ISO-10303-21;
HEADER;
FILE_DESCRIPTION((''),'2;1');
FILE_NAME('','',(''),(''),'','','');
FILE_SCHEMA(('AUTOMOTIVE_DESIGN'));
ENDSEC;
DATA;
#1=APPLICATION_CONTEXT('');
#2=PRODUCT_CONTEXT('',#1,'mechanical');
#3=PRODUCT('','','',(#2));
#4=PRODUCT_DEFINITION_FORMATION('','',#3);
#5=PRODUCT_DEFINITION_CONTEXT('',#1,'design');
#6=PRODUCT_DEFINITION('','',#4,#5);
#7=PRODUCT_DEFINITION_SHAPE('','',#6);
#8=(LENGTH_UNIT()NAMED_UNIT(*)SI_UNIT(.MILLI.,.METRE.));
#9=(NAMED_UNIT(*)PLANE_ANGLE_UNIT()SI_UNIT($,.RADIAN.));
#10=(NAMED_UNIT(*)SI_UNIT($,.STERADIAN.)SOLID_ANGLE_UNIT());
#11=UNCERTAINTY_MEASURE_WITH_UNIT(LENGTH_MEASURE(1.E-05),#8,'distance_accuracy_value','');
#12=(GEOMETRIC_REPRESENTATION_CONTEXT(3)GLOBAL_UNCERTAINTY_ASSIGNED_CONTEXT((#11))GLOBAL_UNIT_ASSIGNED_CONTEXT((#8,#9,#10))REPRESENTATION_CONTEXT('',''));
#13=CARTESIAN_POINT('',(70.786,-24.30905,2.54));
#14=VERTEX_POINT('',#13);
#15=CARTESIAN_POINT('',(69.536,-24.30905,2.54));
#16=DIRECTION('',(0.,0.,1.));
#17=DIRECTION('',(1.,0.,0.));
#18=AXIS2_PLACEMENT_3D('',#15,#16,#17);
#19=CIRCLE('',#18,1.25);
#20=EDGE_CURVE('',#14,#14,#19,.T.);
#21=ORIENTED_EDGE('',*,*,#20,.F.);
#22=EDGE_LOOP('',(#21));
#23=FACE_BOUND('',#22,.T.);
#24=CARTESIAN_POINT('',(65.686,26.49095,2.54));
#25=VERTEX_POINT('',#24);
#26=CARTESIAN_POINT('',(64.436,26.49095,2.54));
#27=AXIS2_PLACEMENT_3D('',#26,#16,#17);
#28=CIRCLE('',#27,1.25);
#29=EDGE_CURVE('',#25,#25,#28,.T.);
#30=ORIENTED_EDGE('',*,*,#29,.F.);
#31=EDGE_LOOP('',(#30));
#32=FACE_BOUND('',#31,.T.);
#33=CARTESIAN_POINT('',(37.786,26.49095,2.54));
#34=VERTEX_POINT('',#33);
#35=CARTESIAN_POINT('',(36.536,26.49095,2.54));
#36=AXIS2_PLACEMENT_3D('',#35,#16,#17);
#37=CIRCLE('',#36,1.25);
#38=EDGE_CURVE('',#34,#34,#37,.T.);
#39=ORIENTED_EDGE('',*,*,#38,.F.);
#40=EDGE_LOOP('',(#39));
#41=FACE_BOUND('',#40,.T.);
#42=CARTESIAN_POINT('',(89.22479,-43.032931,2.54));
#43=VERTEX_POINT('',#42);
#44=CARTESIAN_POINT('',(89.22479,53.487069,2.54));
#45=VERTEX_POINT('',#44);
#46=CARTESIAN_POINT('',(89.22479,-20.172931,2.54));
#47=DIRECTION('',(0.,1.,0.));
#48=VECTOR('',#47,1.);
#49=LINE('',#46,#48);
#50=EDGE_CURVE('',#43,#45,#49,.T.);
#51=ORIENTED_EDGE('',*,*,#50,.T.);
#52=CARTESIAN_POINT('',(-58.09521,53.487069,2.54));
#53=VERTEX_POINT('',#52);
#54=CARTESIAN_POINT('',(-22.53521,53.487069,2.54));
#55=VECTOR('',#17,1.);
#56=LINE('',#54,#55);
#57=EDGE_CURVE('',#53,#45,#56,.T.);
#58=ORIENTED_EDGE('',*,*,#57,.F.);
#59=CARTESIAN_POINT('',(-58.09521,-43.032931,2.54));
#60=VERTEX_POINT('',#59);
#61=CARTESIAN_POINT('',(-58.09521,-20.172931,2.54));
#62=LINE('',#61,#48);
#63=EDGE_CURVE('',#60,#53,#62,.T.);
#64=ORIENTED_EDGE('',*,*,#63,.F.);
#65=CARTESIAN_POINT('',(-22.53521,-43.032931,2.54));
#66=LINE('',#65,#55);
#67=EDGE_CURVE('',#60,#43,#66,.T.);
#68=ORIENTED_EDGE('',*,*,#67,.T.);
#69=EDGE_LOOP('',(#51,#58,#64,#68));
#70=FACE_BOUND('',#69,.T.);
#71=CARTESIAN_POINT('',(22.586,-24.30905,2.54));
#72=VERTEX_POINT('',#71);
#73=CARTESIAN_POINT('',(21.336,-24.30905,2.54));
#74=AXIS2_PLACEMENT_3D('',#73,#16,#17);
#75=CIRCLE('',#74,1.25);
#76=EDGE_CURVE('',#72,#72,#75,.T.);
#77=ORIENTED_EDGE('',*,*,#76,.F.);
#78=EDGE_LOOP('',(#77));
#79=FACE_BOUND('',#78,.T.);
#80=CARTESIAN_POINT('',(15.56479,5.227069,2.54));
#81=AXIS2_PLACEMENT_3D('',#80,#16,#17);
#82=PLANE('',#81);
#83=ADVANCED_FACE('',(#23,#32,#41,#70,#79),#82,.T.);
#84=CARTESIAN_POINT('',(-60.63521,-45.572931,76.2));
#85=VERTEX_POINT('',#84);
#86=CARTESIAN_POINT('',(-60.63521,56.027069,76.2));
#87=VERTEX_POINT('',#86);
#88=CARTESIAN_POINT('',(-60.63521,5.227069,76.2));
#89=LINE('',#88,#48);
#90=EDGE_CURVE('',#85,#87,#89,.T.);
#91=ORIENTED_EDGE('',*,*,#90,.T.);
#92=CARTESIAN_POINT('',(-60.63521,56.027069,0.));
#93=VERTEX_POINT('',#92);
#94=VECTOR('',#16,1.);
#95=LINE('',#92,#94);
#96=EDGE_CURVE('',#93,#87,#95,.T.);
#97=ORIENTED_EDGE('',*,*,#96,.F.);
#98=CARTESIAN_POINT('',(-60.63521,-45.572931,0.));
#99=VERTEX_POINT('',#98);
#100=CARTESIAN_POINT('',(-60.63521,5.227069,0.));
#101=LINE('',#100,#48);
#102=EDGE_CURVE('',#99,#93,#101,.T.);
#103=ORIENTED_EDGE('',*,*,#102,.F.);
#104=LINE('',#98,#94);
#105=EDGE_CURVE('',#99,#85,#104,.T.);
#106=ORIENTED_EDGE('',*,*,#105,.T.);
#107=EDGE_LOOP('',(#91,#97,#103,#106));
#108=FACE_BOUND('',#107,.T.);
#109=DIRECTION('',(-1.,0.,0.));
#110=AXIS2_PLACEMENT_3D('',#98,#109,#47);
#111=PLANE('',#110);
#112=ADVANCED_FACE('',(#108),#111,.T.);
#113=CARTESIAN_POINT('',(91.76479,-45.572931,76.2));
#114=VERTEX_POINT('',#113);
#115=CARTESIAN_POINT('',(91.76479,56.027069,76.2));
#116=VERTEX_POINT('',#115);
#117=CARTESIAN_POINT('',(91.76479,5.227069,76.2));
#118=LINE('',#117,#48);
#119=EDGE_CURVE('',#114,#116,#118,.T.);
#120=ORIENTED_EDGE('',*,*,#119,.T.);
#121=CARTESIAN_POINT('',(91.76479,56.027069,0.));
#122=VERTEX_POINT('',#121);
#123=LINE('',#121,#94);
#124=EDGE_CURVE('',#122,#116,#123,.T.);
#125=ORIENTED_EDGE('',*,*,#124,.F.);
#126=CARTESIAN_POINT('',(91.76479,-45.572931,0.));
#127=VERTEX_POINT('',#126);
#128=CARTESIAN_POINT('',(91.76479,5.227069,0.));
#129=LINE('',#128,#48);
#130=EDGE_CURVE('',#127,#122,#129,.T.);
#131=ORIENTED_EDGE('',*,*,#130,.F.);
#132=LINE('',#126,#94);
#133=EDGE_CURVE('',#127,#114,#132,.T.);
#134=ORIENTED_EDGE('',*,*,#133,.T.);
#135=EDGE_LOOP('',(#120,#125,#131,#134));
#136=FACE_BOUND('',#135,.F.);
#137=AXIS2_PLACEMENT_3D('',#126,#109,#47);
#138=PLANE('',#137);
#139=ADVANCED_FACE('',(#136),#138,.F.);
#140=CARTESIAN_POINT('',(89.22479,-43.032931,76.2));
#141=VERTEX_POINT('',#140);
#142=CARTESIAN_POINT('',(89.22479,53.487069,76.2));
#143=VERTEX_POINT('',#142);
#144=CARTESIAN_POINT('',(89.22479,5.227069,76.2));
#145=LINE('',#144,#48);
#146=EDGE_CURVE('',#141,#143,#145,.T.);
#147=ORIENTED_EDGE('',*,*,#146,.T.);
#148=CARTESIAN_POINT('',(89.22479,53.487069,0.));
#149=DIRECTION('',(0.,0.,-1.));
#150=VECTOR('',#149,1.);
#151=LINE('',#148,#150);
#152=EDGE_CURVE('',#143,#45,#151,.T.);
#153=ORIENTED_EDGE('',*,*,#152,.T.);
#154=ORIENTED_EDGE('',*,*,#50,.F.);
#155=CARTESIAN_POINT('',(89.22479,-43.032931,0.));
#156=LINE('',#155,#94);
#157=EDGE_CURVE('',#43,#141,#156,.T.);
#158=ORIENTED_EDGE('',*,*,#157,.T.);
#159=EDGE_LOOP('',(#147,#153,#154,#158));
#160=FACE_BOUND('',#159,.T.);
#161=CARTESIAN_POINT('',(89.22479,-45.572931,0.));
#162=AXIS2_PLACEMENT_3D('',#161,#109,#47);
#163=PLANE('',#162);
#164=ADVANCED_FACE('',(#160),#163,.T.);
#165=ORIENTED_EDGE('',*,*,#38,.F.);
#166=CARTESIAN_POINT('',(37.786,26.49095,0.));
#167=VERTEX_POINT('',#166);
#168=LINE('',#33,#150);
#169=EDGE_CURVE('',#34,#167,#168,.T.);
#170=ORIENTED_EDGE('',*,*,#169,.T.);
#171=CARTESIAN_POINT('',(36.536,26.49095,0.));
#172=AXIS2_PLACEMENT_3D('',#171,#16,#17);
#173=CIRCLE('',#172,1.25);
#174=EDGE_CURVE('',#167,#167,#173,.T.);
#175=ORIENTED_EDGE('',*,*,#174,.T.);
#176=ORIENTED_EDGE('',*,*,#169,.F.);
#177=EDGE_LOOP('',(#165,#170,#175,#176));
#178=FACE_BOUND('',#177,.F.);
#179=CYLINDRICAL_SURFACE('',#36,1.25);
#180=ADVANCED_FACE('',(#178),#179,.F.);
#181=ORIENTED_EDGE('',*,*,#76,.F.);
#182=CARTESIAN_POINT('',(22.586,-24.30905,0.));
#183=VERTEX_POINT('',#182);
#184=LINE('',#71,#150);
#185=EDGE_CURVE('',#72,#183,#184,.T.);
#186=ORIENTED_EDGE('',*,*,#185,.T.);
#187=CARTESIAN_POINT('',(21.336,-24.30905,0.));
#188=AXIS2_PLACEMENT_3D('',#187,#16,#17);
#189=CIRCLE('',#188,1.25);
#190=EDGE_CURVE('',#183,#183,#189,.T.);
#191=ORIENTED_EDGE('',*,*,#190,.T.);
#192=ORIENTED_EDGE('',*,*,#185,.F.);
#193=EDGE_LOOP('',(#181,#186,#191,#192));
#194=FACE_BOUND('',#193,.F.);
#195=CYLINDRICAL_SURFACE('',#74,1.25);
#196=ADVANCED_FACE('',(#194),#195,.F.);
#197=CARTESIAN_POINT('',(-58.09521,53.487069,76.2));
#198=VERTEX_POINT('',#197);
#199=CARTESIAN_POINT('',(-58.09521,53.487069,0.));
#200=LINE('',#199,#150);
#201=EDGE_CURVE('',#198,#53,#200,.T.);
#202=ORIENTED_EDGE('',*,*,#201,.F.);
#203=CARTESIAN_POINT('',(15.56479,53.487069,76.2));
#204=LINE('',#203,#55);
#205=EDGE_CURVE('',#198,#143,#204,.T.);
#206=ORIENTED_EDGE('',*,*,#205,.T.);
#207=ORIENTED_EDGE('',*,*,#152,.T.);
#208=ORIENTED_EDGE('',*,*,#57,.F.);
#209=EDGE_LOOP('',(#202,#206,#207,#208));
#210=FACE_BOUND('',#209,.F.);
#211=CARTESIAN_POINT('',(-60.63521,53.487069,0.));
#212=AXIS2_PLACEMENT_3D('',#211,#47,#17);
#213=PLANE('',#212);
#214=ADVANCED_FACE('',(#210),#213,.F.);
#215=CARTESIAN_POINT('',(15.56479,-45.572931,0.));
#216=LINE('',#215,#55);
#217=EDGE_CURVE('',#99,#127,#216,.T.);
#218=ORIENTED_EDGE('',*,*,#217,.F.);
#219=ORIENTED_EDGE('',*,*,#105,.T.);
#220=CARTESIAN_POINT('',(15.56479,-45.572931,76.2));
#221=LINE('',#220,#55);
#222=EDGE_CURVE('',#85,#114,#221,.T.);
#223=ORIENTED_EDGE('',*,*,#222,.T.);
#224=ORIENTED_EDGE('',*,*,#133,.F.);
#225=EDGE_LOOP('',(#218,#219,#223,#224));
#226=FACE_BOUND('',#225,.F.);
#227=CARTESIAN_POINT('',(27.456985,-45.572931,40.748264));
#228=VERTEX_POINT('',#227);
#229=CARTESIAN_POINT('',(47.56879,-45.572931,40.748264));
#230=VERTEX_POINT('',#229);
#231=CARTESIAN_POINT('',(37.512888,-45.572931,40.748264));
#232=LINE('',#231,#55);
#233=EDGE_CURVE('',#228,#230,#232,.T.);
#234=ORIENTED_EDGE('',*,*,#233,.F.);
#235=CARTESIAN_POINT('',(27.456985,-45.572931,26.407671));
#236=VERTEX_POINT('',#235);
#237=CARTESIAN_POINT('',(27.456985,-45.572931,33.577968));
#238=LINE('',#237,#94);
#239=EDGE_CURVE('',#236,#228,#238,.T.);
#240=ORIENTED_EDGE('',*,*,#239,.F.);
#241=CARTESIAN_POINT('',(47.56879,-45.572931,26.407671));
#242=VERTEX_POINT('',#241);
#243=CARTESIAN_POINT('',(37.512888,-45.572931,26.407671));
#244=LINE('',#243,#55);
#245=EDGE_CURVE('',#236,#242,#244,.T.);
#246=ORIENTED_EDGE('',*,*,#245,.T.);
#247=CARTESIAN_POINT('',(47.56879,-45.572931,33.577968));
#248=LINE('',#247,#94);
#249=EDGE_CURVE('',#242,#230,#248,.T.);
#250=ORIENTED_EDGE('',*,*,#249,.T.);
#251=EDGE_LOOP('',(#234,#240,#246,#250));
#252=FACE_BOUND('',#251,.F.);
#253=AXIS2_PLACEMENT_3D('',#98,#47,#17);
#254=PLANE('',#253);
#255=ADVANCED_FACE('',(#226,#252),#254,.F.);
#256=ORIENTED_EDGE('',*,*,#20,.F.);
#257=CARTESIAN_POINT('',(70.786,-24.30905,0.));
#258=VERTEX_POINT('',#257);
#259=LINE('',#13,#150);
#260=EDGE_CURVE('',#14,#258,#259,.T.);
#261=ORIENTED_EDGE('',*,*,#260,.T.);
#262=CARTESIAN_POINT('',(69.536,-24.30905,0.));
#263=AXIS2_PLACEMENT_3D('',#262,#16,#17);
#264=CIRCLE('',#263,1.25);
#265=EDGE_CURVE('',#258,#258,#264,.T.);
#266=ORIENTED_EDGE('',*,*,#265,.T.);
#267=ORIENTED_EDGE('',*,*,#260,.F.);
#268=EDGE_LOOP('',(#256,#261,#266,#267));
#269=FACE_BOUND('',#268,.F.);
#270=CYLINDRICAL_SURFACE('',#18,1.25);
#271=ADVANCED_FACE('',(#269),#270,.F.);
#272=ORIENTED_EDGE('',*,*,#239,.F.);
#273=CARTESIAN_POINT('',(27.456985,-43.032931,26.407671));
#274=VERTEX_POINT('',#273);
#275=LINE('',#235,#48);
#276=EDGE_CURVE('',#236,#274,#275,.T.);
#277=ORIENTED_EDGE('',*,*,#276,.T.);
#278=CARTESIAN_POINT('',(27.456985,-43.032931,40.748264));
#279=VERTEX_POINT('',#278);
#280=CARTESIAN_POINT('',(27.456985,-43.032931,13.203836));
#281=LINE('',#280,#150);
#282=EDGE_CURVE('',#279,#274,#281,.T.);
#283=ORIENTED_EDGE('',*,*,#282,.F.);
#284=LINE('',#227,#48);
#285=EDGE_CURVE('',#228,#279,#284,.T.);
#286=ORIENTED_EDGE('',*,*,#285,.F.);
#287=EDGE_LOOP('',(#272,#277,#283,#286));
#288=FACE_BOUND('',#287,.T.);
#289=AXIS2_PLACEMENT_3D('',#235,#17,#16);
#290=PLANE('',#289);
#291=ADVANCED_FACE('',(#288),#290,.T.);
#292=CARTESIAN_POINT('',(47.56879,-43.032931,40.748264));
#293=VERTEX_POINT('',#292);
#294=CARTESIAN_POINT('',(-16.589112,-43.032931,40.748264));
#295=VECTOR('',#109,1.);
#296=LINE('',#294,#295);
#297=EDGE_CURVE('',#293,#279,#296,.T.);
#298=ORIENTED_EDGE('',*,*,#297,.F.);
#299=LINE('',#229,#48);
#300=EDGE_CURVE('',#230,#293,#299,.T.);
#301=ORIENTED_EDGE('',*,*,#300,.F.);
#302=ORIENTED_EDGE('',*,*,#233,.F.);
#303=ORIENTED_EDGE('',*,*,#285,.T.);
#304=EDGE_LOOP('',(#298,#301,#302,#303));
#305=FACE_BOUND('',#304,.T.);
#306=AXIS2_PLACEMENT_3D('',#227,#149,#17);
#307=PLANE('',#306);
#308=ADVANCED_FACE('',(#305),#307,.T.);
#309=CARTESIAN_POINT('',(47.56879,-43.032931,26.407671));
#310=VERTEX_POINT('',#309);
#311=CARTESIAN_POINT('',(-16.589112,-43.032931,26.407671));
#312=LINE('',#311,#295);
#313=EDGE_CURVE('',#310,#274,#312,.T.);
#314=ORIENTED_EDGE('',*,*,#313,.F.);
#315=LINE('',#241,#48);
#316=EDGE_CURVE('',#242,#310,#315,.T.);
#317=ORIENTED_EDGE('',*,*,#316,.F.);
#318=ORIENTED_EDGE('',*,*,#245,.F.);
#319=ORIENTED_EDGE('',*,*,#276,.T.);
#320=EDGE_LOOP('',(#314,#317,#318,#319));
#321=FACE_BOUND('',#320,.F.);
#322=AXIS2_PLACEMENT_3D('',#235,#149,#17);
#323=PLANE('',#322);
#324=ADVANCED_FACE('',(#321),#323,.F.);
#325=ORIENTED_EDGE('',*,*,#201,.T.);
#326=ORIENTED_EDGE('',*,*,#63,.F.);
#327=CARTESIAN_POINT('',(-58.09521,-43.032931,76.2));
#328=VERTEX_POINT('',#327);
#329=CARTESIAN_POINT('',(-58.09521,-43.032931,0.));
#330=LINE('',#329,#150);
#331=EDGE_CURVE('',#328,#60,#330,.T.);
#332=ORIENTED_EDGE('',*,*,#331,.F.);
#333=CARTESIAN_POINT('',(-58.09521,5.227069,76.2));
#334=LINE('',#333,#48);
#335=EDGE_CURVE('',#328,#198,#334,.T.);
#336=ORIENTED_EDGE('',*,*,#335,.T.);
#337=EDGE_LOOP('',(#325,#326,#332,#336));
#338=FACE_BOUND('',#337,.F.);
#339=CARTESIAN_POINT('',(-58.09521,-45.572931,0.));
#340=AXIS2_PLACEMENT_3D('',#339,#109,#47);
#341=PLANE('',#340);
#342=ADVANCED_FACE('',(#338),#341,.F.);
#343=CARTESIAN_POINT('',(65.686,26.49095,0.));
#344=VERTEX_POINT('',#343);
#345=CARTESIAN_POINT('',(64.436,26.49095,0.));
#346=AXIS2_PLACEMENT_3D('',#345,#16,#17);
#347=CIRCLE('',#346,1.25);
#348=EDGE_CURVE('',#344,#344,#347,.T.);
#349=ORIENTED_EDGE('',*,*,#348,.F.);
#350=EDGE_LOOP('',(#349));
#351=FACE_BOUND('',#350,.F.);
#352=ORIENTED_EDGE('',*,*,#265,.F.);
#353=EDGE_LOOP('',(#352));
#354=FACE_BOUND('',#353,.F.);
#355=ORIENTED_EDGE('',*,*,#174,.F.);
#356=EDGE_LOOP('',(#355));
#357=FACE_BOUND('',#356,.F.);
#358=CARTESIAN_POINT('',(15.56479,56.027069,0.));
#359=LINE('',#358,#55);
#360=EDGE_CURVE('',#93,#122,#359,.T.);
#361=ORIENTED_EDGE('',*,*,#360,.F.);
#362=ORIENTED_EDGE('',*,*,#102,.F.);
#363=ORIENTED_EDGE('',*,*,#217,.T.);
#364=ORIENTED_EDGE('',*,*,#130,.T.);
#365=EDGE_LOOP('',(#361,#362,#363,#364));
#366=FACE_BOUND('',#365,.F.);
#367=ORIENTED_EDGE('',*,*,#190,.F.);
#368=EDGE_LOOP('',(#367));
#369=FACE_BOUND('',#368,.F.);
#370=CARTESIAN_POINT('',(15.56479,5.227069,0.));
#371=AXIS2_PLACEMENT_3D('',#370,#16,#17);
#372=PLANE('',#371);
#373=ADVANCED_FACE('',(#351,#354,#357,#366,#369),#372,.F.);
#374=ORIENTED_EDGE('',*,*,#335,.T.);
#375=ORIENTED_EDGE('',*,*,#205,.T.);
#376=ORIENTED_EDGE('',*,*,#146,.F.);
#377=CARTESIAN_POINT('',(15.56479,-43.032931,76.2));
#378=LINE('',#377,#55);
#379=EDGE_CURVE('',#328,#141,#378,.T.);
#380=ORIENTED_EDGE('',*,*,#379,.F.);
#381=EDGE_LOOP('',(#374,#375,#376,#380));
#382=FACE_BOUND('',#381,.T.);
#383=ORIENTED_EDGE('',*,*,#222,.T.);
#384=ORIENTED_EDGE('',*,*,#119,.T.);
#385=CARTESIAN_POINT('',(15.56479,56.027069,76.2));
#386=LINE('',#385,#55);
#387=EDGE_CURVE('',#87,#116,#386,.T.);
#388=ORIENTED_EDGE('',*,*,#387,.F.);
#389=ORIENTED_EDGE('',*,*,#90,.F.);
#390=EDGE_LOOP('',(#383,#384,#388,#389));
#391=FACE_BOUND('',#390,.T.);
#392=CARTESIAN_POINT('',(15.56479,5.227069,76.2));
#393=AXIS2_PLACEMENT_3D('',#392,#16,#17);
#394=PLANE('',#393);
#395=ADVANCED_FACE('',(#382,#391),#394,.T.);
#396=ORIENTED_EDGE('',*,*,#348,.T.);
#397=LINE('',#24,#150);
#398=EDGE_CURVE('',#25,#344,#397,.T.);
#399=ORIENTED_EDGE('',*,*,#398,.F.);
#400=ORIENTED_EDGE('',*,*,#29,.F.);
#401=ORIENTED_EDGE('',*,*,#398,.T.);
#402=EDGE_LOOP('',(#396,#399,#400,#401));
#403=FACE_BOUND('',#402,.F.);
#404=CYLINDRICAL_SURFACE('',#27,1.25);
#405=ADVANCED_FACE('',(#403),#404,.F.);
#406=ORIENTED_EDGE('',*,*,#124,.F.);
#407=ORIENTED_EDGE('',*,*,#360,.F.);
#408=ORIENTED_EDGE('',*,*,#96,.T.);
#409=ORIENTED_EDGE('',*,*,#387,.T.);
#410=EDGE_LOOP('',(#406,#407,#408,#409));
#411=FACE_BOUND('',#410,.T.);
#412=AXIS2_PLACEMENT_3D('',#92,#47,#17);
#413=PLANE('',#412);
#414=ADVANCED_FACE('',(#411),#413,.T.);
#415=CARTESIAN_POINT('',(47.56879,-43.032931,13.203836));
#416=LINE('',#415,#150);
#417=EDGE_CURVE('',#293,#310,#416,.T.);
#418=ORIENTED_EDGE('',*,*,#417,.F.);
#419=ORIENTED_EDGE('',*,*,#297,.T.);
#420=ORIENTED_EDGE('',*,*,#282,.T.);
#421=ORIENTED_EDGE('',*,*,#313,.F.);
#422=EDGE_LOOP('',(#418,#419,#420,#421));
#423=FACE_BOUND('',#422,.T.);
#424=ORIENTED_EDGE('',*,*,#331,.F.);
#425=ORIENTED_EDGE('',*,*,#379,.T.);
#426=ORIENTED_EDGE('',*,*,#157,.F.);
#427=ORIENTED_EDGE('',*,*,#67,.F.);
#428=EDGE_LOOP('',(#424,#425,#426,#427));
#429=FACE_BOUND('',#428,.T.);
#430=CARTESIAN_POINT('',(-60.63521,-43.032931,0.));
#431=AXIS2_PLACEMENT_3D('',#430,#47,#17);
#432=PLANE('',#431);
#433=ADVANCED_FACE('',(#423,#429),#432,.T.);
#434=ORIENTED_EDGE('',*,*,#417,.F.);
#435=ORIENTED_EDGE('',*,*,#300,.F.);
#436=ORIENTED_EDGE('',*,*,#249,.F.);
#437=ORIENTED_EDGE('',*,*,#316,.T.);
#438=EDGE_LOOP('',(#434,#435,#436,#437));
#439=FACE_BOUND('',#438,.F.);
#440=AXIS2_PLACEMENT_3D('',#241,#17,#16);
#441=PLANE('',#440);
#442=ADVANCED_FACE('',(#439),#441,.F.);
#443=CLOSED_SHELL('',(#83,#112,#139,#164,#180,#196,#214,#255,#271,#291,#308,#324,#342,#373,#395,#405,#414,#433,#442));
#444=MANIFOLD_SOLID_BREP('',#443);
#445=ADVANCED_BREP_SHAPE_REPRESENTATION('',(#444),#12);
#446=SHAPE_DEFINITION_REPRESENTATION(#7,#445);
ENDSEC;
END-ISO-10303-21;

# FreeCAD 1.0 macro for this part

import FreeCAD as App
import Part
import Sketcher
from FreeCAD import Vector
Q = App.Units.Quantity


def faces_at(feature, points):
    """Names of the faces that lie closest to the given points."""
    faces = feature.Shape.Faces
    near = lambda p: min(range(len(faces)), key=lambda i: faces[i].distToShape(Part.Vertex(*p))[0])
    return sorted({f"Face{near(p) + 1}" for p in points})


def add_polygon(sketch, points):
    """Adds a closed chain of lines whose ends are joined by coincident constraints."""
    first, n = sketch.GeometryCount, len(points)
    for a, b in zip(points, points[1:] + points[:1]):
        sketch.addGeometry(Part.LineSegment(App.Vector(*a, 0), App.Vector(*b, 0)), False)
    for i in range(n):
        sketch.addConstraint(Sketcher.Constraint("Coincident", first + i, 2, first + (i + 1) % n, 1))

doc = App.newDocument("Part")
params = doc.addObject("Spreadsheet::Sheet", "Params")
for row, (alias, value) in enumerate([
    ("sketch1_width", "6 in"),
    ("sketch1_height", "4 in"),
    ("pad1_length", "3 in"),
    ("thickness_wall", "0.1 in"),
    ("pocket2_length", "1 in"),
], start=1):
    params.set(f"A{row}", alias)
    params.set(f"B{row}", "=" + value)
    params.setAlias(f"B{row}", alias)

body = doc.addObject("PartDesign::Body", "Body")

sketch1 = body.newObject("Sketcher::SketchObject", "Sketch")
sketch1.AttachmentSupport = (doc.getObject("XY_Plane"), [""])
sketch1.MapMode = "FlatFace"
add_polygon(sketch1, [(-60.63521, 56.027069), (-60.63521, -45.572931), (91.76479, -45.572931), (91.76479, 56.027069)])
sketch1.addConstraint(Sketcher.Constraint("Vertical", 0))
sketch1.addConstraint(Sketcher.Constraint("Horizontal", 1))
sketch1.addConstraint(Sketcher.Constraint("Vertical", 2))
sketch1.addConstraint(Sketcher.Constraint("Horizontal", 3))
sketch1.addConstraint(Sketcher.Constraint("DistanceX", 1, 1, 1, 2, Q("6 in")))
sketch1.addConstraint(Sketcher.Constraint("DistanceY", 0, 2, 0, 1, Q("4 in")))
sketch1.addConstraint(Sketcher.Constraint("DistanceX", 0, 2, -1, 1, Q("60.63521 mm")))
sketch1.addConstraint(Sketcher.Constraint("DistanceY", 0, 2, -1, 1, Q("45.572931 mm")))
sketch1.setExpression("Constraints[8]", "Params.sketch1_width")
sketch1.setExpression("Constraints[9]", "Params.sketch1_height")
pad1 = body.newObject("PartDesign::Pad", "Pad")
pad1.Profile = sketch1
pad1.setExpression("Length", "Params.pad1_length")
doc.recompute()

thickness = body.newObject("PartDesign::Thickness", "Thickness")
thickness.Base = (pad1, faces_at(pad1, [(15.565, 5.227, 76.2)]))
thickness.setExpression("Value", "Params.thickness_wall")
thickness.Reversed = True
thickness.Join = "Arc"

sketch2 = body.newObject("Sketcher::SketchObject", "Sketch001")
sketch2.AttachmentSupport = (doc.getObject("XY_Plane"), [""])
sketch2.MapMode = "FlatFace"
sketch2.AttachmentOffset = App.Placement(Vector(0, 0, 0.1 * 25.4), App.Rotation())
sketch2.addGeometry(Part.Circle(Vector(21.336, -24.30905, 0), Vector(0, 0, 1), 1.25), False)
sketch2.addGeometry(Part.Circle(Vector(36.536, 26.49095, 0), Vector(0, 0, 1), 1.25), False)
sketch2.addGeometry(Part.Circle(Vector(64.436, 26.49095, 0), Vector(0, 0, 1), 1.25), False)
sketch2.addGeometry(Part.Circle(Vector(69.536, -24.30905, 0), Vector(0, 0, 1), 1.25), False)
sketch2.addConstraint(Sketcher.Constraint("Equal", 0, 1))
sketch2.addConstraint(Sketcher.Constraint("Equal", 1, 2))
sketch2.addConstraint(Sketcher.Constraint("Equal", 2, 3))
sketch2.addConstraint(Sketcher.Constraint("Horizontal", 1, 3, 2, 3))
sketch2.addConstraint(Sketcher.Constraint("Horizontal", 0, 3, 3, 3))
sketch2.addConstraint(Sketcher.Constraint("DistanceY", 0, 3, 1, 3, Q("2 in")))
sketch2.addConstraint(Sketcher.Constraint("Diameter", 0, Q("2.5 mm")))
sketch2.addConstraint(Sketcher.Constraint("DistanceX", -1, 1, 0, 3, Q("0.84 in")))
sketch2.addConstraint(Sketcher.Constraint("DistanceX", -1, 1, 1, 3, Q("36.536 mm")))
sketch2.addConstraint(Sketcher.Constraint("DistanceX", -1, 1, 2, 3, Q("64.436 mm")))
sketch2.addConstraint(Sketcher.Constraint("DistanceX", -1, 1, 3, 3, Q("69.536 mm")))
sketch2.addConstraint(Sketcher.Constraint("DistanceY", 0, 3, -1, 1, Q("24.30905 mm")))
pocket1 = body.newObject("PartDesign::Pocket", "Pocket")
pocket1.Profile = sketch2
pocket1.Type = "ThroughAll"

sketch3 = body.newObject("Sketcher::SketchObject", "Sketch002")
sketch3.AttachmentSupport = (doc.getObject("XZ_Plane"), [""])
sketch3.MapMode = "FlatFace"
sketch3.AttachmentOffset = App.Placement(Vector(0, 0, 45.572931), App.Rotation())
add_polygon(sketch3, [(27.456985, 40.748264), (27.456985, 26.407671), (47.56879, 26.407671), (47.56879, 40.748264)])
sketch3.addConstraint(Sketcher.Constraint("Vertical", 0))
sketch3.addConstraint(Sketcher.Constraint("Horizontal", 1))
sketch3.addConstraint(Sketcher.Constraint("Vertical", 2))
sketch3.addConstraint(Sketcher.Constraint("Horizontal", 3))
sketch3.addConstraint(Sketcher.Constraint("DistanceX", 1, 1, 1, 2, Q("20.111805 mm")))
sketch3.addConstraint(Sketcher.Constraint("DistanceY", 0, 2, 0, 1, Q("14.340593 mm")))
sketch3.addConstraint(Sketcher.Constraint("DistanceY", -1, 1, 0, 2, Q("26.407671 mm")))
sketch3.addConstraint(Sketcher.Constraint("DistanceX", -1, 1, 1, 2, Q("47.56879 mm")))
pocket2 = body.newObject("PartDesign::Pocket", "Pocket001")
pocket2.Profile = sketch3
pocket2.setExpression("Length", "Params.pocket2_length")

doc.recompute()
